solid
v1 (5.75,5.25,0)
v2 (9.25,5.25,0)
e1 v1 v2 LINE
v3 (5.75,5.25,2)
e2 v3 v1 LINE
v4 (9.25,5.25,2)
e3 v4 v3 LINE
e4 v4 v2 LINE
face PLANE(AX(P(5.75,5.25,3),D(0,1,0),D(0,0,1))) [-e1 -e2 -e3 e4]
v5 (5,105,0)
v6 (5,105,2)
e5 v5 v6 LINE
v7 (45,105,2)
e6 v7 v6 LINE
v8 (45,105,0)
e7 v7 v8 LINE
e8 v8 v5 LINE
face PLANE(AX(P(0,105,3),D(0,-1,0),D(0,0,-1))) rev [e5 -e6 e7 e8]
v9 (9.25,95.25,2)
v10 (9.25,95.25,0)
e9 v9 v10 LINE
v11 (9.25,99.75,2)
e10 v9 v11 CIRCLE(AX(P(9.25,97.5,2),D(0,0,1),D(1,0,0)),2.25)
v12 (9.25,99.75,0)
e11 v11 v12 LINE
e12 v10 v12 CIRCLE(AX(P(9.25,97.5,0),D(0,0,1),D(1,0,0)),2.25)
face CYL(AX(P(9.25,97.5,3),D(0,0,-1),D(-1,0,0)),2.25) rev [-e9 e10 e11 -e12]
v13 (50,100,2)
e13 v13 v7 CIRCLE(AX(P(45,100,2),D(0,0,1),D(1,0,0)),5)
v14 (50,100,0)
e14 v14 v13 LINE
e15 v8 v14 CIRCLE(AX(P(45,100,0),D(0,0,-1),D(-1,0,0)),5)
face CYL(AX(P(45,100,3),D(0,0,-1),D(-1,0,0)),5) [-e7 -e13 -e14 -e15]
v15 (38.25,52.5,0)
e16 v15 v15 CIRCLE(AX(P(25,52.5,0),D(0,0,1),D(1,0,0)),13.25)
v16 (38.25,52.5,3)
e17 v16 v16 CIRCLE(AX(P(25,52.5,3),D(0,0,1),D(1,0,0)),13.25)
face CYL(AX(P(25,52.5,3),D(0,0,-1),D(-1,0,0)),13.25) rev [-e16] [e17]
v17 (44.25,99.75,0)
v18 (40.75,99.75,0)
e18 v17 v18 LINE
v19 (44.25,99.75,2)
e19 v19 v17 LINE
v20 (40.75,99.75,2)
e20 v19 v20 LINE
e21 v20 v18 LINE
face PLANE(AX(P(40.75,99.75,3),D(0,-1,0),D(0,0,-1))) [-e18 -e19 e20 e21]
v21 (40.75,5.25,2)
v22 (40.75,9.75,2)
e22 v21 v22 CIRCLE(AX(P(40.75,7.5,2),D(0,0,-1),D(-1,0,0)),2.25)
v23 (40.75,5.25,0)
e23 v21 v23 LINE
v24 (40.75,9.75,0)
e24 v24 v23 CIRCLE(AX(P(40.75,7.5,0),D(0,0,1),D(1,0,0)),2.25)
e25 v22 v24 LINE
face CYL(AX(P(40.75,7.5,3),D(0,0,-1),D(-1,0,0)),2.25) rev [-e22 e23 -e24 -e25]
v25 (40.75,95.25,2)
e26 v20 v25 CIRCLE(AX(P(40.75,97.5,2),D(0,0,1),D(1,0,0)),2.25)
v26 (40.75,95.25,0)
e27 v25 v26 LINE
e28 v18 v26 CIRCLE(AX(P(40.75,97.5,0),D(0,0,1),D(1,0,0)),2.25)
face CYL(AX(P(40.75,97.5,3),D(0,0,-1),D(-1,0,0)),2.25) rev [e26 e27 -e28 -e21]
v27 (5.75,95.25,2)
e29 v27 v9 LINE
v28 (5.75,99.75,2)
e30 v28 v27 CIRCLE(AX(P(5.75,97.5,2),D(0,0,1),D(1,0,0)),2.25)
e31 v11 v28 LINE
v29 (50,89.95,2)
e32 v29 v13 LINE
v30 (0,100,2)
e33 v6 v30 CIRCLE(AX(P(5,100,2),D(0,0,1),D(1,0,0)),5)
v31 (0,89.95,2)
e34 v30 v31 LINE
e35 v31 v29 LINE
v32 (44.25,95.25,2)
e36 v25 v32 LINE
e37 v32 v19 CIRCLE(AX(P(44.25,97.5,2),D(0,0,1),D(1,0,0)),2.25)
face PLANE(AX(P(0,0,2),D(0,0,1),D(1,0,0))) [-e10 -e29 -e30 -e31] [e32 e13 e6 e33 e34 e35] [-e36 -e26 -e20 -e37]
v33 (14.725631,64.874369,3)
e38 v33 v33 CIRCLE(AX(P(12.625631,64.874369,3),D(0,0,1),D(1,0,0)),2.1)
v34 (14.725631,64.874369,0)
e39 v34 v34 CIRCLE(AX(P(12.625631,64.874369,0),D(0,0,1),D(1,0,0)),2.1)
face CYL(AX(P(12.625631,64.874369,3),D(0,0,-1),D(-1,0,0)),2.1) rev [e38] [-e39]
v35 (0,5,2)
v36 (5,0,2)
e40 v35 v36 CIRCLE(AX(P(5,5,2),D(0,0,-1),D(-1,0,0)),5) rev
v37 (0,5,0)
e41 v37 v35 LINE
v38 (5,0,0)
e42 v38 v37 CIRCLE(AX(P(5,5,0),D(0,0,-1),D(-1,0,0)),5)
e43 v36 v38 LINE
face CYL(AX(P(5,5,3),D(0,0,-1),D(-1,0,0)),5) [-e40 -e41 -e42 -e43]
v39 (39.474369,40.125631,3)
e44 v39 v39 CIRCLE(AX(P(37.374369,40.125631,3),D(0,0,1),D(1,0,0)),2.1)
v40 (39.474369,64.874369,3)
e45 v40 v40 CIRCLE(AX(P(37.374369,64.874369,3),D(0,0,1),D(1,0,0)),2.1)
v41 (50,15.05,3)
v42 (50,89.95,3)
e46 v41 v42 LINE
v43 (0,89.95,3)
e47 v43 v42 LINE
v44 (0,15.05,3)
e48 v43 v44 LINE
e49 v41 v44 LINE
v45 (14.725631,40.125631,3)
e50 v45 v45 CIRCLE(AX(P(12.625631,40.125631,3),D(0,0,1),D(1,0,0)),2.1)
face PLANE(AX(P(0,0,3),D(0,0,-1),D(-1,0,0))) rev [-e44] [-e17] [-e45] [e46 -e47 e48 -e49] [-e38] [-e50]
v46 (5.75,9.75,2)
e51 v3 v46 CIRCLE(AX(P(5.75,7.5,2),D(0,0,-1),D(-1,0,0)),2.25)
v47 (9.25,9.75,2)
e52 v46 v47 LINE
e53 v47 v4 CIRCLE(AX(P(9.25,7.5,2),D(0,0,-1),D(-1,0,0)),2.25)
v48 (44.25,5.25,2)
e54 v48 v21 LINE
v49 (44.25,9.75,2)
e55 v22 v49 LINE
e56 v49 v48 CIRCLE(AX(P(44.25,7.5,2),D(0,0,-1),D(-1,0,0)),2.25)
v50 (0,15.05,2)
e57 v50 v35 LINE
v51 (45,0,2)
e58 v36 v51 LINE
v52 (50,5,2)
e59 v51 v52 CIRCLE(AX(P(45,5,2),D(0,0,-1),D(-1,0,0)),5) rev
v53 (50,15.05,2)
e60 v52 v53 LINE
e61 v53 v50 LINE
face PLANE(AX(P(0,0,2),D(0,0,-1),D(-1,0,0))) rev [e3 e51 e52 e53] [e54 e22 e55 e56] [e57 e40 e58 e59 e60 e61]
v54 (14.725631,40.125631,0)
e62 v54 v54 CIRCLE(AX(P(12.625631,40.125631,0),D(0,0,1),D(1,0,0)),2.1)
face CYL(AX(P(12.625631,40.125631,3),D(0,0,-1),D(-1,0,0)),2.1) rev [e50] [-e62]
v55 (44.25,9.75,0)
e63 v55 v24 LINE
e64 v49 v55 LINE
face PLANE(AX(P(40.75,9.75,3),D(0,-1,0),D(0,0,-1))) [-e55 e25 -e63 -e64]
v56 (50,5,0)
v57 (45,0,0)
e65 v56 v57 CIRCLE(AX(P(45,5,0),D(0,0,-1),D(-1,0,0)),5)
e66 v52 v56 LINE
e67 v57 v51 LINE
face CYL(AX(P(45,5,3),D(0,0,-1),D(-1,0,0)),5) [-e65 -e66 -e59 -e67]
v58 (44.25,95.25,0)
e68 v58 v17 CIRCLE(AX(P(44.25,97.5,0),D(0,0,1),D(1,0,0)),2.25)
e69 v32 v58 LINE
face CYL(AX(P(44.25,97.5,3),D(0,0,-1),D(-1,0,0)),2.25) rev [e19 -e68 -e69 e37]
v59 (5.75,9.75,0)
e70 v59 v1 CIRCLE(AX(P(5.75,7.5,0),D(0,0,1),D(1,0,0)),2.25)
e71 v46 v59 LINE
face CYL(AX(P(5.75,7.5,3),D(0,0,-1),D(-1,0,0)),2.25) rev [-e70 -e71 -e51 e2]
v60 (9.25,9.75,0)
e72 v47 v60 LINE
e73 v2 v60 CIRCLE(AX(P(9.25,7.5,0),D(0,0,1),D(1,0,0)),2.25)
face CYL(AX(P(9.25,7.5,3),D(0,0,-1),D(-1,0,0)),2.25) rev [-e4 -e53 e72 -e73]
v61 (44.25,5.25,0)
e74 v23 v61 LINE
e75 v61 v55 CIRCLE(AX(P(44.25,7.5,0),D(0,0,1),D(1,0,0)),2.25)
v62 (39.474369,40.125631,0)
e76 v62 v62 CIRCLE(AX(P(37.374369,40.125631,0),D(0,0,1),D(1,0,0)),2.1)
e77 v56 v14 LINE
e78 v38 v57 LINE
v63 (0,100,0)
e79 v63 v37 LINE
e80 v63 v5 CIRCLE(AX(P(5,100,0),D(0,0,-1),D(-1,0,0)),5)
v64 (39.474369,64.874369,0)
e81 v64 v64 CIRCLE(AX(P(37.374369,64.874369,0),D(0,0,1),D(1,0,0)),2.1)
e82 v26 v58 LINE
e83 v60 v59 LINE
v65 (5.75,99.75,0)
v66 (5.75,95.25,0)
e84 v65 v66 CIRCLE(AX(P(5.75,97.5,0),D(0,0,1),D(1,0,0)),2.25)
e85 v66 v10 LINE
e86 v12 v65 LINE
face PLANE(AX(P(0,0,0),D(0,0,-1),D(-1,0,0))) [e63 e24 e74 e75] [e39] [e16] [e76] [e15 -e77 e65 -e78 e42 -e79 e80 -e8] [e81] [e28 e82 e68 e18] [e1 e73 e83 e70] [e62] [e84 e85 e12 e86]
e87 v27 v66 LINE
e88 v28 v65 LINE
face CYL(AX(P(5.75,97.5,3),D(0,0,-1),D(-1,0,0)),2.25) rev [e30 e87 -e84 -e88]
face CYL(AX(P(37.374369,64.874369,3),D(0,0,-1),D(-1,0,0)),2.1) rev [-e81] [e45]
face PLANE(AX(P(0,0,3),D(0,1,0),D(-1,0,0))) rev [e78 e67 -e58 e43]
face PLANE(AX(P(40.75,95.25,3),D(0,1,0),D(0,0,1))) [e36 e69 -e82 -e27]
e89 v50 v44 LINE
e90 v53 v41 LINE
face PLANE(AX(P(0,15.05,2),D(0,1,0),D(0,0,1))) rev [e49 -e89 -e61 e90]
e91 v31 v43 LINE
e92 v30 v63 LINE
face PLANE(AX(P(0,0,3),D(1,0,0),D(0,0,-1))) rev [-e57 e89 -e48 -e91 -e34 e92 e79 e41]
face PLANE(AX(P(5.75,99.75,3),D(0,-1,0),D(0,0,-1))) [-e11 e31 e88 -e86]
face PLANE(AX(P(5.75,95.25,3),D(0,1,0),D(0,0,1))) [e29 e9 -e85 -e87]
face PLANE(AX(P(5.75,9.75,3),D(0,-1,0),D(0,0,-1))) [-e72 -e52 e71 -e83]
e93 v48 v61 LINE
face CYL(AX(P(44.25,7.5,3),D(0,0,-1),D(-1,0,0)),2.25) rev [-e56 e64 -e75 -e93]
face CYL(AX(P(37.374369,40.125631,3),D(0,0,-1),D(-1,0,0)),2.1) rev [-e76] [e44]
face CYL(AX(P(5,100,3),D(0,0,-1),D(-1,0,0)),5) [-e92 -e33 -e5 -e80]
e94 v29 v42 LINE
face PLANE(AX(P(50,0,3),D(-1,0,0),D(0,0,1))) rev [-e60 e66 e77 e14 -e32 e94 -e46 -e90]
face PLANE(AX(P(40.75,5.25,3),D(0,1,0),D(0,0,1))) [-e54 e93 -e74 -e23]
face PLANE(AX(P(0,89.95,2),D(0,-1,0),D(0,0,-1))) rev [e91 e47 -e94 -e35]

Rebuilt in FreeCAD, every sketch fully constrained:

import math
import FreeCAD as App
import Part
import Sketcher

V = App.Vector
Q = App.Units.Quantity


def edges_at(feature, points):
    """Names of the edges that pass closest to the given points."""
    edges = feature.Shape.Edges
    near = lambda p: min(range(len(edges)), key=lambda i: edges[i].distToShape(Part.Vertex(*p))[0])
    return sorted({f"Edge{near(p) + 1}" for p in points})


def add_polygon(sketch, points):
    """Adds a closed chain of lines whose ends are joined by coincident constraints."""
    first, n = sketch.GeometryCount, len(points)
    for a, b in zip(points, points[1:] + points[:1]):
        sketch.addGeometry(Part.LineSegment(App.Vector(*a, 0), App.Vector(*b, 0)), False)
    for i in range(n):
        sketch.addConstraint(Sketcher.Constraint("Coincident", first + i, 2, first + (i + 1) % n, 1))

doc = App.newDocument("Part")
body = doc.addObject("PartDesign::Body", "Body")

# Sketch on XY plane
sketch1 = body.newObject("Sketcher::SketchObject", "Sketch")
sketch1.AttachmentSupport = (doc.getObject("XY_Plane"), [""])
sketch1.MapMode = "FlatFace"
add_polygon(sketch1, [(0, 105), (0, 0), (50, 0), (50, 105)])  # lines 0-3
sketch1.addGeometry(Part.ArcOfCircle(Part.Circle(V(5.75, 7.5, 0), V(0, 0, 1), 2.25), math.radians(90), math.radians(270)), False)  # 4
sketch1.addGeometry(Part.LineSegment(V(5.75, 9.75, 0), V(9.25, 9.75, 0)), False)  # 5
sketch1.addGeometry(Part.ArcOfCircle(Part.Circle(V(9.25, 7.5, 0), V(0, 0, 1), 2.25), math.radians(-90), math.radians(90)), False)  # 6
sketch1.addGeometry(Part.LineSegment(V(9.25, 5.25, 0), V(5.75, 5.25, 0)), False)  # 7
sketch1.addGeometry(Part.Circle(V(12.625631, 40.125631, 0), V(0, 0, 1), 2.1), False)  # 8
sketch1.addGeometry(Part.ArcOfCircle(Part.Circle(V(40.75, 7.5, 0), V(0, 0, 1), 2.25), math.radians(90), math.radians(270)), False)  # 9
sketch1.addGeometry(Part.LineSegment(V(40.75, 9.75, 0), V(44.25, 9.75, 0)), False)  # 10
sketch1.addGeometry(Part.ArcOfCircle(Part.Circle(V(44.25, 7.5, 0), V(0, 0, 1), 2.25), math.radians(-90), math.radians(90)), False)  # 11
sketch1.addGeometry(Part.LineSegment(V(44.25, 5.25, 0), V(40.75, 5.25, 0)), False)  # 12
sketch1.addGeometry(Part.Circle(V(37.374369, 40.125631, 0), V(0, 0, 1), 2.1), False)  # 13
sketch1.addGeometry(Part.Circle(V(12.625631, 64.874369, 0), V(0, 0, 1), 2.1), False)  # 14
sketch1.addGeometry(Part.Circle(V(25, 52.5, 0), V(0, 0, 1), 13.25), False)  # 15
sketch1.addGeometry(Part.ArcOfCircle(Part.Circle(V(5.75, 97.5, 0), V(0, 0, 1), 2.25), math.radians(90), math.radians(270)), False)  # 16
sketch1.addGeometry(Part.LineSegment(V(5.75, 99.75, 0), V(9.25, 99.75, 0)), False)  # 17
sketch1.addGeometry(Part.ArcOfCircle(Part.Circle(V(9.25, 97.5, 0), V(0, 0, 1), 2.25), math.radians(-90), math.radians(90)), False)  # 18
sketch1.addGeometry(Part.LineSegment(V(9.25, 95.25, 0), V(5.75, 95.25, 0)), False)  # 19
sketch1.addGeometry(Part.Circle(V(37.374369, 64.874369, 0), V(0, 0, 1), 2.1), False)  # 20
sketch1.addGeometry(Part.ArcOfCircle(Part.Circle(V(40.75, 97.5, 0), V(0, 0, 1), 2.25), math.radians(90), math.radians(270)), False)  # 21
sketch1.addGeometry(Part.LineSegment(V(40.75, 99.75, 0), V(44.25, 99.75, 0)), False)  # 22
sketch1.addGeometry(Part.ArcOfCircle(Part.Circle(V(44.25, 97.5, 0), V(0, 0, 1), 2.25), math.radians(-90), math.radians(90)), False)  # 23
sketch1.addGeometry(Part.LineSegment(V(44.25, 95.25, 0), V(40.75, 95.25, 0)), False)  # 24
sketch1.addConstraint([
    Sketcher.Constraint("Tangent", 4, 1, 5, 1),
    Sketcher.Constraint("Tangent", 5, 2, 6, 2),
    Sketcher.Constraint("Tangent", 6, 1, 7, 1),
    Sketcher.Constraint("Tangent", 7, 2, 4, 2),
    Sketcher.Constraint("Tangent", 9, 1, 10, 1),
    Sketcher.Constraint("Tangent", 10, 2, 11, 2),
    Sketcher.Constraint("Tangent", 11, 1, 12, 1),
    Sketcher.Constraint("Tangent", 12, 2, 9, 2),
    Sketcher.Constraint("Tangent", 16, 1, 17, 1),
    Sketcher.Constraint("Tangent", 17, 2, 18, 2),
    Sketcher.Constraint("Tangent", 18, 1, 19, 1),
    Sketcher.Constraint("Tangent", 19, 2, 16, 2),
    Sketcher.Constraint("Tangent", 21, 1, 22, 1),
    Sketcher.Constraint("Tangent", 22, 2, 23, 2),
    Sketcher.Constraint("Tangent", 23, 1, 24, 1),
    Sketcher.Constraint("Tangent", 24, 2, 21, 2),
    Sketcher.Constraint("Vertical", 0),
    Sketcher.Constraint("Horizontal", 1),
    Sketcher.Constraint("Vertical", 2),
    Sketcher.Constraint("Horizontal", 3),
    Sketcher.Constraint("Horizontal", 5),
    Sketcher.Constraint("Horizontal", 7),
    Sketcher.Constraint("Horizontal", 10),
    Sketcher.Constraint("Horizontal", 12),
    Sketcher.Constraint("Horizontal", 17),
    Sketcher.Constraint("Horizontal", 19),
    Sketcher.Constraint("Horizontal", 22),
    Sketcher.Constraint("Horizontal", 24),
    Sketcher.Constraint("Coincident", 0, 2, -1, 1),
    Sketcher.Constraint("Equal", 6, 9),
    Sketcher.Constraint("Equal", 8, 13),
    Sketcher.Constraint("Equal", 13, 14),
    Sketcher.Constraint("Equal", 11, 16),
    Sketcher.Constraint("Equal", 14, 20),
    Sketcher.Constraint("Equal", 18, 21),
    Sketcher.Constraint("Horizontal", 6, 3, 9, 3),
    Sketcher.Constraint("Horizontal", 8, 3, 13, 3),
    Sketcher.Constraint("Horizontal", 14, 3, 20, 3),
    Sketcher.Constraint("Horizontal", 18, 3, 21, 3),
    Sketcher.Constraint("Vertical", 8, 3, 14, 3),
    Sketcher.Constraint("Vertical", 4, 3, 16, 3),
    Sketcher.Constraint("Vertical", 6, 3, 18, 3),
    Sketcher.Constraint("Vertical", 13, 3, 20, 3),
    Sketcher.Constraint("Vertical", 9, 3, 21, 3),
    Sketcher.Constraint("Vertical", 11, 3, 23, 3),
    Sketcher.Constraint("Equal", 7, 10),
    Sketcher.Constraint("Diameter", 8, Q("4.2 mm")),
    Sketcher.Constraint("Diameter", 15, Q("26.5 mm")),
    Sketcher.Constraint("DistanceX", 1, 1, 1, 2, Q("50 mm")),
    Sketcher.Constraint("DistanceY", 0, 2, 0, 1, Q("105 mm")),
    Sketcher.Constraint("Radius", 4, Q("2.25 mm")),
    Sketcher.Constraint("DistanceX", 5, 1, 5, 2, Q("3.5 mm")),
    Sketcher.Constraint("DistanceX", -1, 1, 15, 3, Q("25 mm")),
    Sketcher.Constraint("DistanceX", 4, 3, 9, 3, Q("35 mm")),
    Sketcher.Constraint("DistanceY", 6, 3, 15, 3, Q("45 mm")),
    Sketcher.Constraint("DistanceY", 15, 3, 16, 3, Q("45 mm")),
    Sketcher.Constraint("DistanceY", -1, 1, 4, 3, Q("7.5 mm")),
    Sketcher.Constraint("DistanceX", -1, 1, 4, 3, Q("5.75 mm")),
    Sketcher.Constraint("DistanceX", -1, 1, 8, 3, Q("12.625631 mm")),
    Sketcher.Constraint("DistanceY", -1, 1, 8, 3, Q("40.125631 mm")),
    Sketcher.Constraint("DistanceX", -1, 1, 13, 3, Q("37.374369 mm")),
    Sketcher.Constraint("DistanceY", -1, 1, 14, 3, Q("64.874369 mm")),
])
pad1 = body.newObject("PartDesign::Pad", "Pad")
pad1.Profile = sketch1
pad1.Length = 3

# Sketch on XY plane
sketch2 = body.newObject("Sketcher::SketchObject", "Sketch001")
sketch2.AttachmentSupport = (doc.getObject("XY_Plane"), [""])
sketch2.MapMode = "FlatFace"
sketch2.AttachmentOffset = App.Placement(V(0, 0, 3), App.Rotation())
add_polygon(sketch2, [(0, 105), (0, 89.95), (50, 89.95), (50, 105)])  # lines 0-3
add_polygon(sketch2, [(0, 15.05), (0, 0), (50, 0), (50, 15.05)])  # lines 4-7
sketch2.addConstraint([
    Sketcher.Constraint("Vertical", 0),
    Sketcher.Constraint("Horizontal", 1),
    Sketcher.Constraint("Vertical", 2),
    Sketcher.Constraint("Horizontal", 3),
    Sketcher.Constraint("Vertical", 4),
    Sketcher.Constraint("Horizontal", 5),
    Sketcher.Constraint("Vertical", 6),
    Sketcher.Constraint("Horizontal", 7),
    Sketcher.Constraint("Coincident", 4, 2, -1, 1),
    Sketcher.Constraint("PointOnObject", 0, 2, -2),
    Sketcher.Constraint("Vertical", 2, 2, 5, 2),
    Sketcher.Constraint("Equal", 2, 4),
    Sketcher.Constraint("DistanceX", 1, 1, 1, 2, Q("50 mm")),
    Sketcher.Constraint("DistanceY", -1, 1, 2, 2, Q("105 mm")),
    Sketcher.Constraint("DistanceY", 0, 2, 0, 1, Q("15.05 mm")),
])
pocket1 = body.newObject("PartDesign::Pocket", "Pocket")
pocket1.Profile = sketch2
pocket1.Length = 1
doc.recompute()

fillet = body.newObject("PartDesign::Fillet", "Fillet")
fillet.Base = (pocket1, edges_at(pocket1, [
    (0, 105, 1),
    (50, 105, 1),
    (50, 0, 1),
    (0, 0, 1),
]))
fillet.Radius = 5

doc.recompute()
